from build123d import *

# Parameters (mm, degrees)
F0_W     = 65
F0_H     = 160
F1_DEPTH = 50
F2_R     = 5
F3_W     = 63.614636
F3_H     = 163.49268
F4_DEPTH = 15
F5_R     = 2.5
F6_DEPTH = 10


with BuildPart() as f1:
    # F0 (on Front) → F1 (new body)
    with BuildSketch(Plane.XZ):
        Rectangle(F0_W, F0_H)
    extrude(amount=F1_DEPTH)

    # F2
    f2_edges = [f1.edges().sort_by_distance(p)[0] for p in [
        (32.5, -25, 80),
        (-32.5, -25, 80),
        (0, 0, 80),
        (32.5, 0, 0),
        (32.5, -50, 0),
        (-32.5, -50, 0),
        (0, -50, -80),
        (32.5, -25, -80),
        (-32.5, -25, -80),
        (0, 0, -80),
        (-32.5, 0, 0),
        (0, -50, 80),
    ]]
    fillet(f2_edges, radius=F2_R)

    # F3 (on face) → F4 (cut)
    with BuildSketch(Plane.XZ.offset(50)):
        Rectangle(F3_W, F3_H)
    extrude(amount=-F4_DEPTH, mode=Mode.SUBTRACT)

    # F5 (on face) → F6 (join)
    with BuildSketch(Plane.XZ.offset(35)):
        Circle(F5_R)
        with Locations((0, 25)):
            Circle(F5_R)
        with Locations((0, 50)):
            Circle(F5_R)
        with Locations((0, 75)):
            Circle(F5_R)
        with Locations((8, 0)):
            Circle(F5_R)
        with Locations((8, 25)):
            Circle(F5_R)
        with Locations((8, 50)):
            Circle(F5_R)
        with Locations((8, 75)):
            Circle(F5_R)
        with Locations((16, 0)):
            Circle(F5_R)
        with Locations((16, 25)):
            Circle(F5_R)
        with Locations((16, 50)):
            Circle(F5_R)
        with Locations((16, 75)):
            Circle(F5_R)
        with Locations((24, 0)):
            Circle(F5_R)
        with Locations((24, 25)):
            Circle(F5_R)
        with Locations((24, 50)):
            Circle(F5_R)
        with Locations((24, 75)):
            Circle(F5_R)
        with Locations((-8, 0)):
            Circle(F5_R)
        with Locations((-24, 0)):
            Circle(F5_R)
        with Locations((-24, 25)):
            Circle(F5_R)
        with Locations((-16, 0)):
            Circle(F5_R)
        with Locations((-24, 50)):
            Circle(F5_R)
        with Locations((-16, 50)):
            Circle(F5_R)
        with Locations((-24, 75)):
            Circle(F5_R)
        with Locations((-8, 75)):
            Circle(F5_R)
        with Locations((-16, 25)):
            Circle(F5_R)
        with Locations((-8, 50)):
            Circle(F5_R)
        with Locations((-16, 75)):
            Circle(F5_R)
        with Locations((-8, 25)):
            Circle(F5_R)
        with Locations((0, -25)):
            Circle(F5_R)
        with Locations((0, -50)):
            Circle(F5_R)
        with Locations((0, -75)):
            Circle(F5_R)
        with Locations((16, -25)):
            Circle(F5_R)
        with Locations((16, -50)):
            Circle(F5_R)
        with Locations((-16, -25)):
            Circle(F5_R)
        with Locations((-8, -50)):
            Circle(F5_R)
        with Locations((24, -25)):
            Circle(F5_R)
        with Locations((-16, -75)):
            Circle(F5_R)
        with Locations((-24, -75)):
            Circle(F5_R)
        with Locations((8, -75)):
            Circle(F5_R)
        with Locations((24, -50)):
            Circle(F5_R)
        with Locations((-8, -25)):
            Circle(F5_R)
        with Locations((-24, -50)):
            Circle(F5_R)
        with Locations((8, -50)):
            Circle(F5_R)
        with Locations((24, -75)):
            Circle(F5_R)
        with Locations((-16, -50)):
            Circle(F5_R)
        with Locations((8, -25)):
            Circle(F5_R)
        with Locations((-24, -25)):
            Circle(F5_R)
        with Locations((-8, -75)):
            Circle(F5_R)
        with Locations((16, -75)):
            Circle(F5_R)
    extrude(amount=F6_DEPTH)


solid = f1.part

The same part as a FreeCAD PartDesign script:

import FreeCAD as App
import Part
import Sketcher
from FreeCAD import Vector

doc = App.newDocument("Part")
params = doc.addObject("Spreadsheet::Sheet", "Params")
for row, (alias, value) in enumerate([
    ("sketch1_width", "65 mm"),
    ("sketch1_height", "160 mm"),
    ("pad1_length", "50 mm"),
    ("fillet_radius", "5 mm"),
    ("pocket1_length", "15 mm"),
    ("sketch3_diameter", "5 mm"),
    ("pad2_length", "10 mm"),
], start=1):
    params.set(f"A{row}", alias)
    params.set(f"B{row}", "=" + value)
    params.setAlias(f"B{row}", alias)

body = doc.addObject("PartDesign::Body", "Body")

sketch1 = body.newObject("Sketcher::SketchObject", "Sketch")
sketch1.AttachmentSupport = (doc.getObject("XZ_Plane"), [""])
sketch1.MapMode = "FlatFace"
sketch1.addGeometry([
    Part.LineSegment(Vector(-32.5, 80, 0), Vector(-32.5, -80, 0)),
    Part.LineSegment(Vector(-32.5, -80, 0), Vector(32.5, -80, 0)),
    Part.LineSegment(Vector(32.5, -80, 0), Vector(32.5, 80, 0)),
    Part.LineSegment(Vector(32.5, 80, 0), Vector(-32.5, 80, 0)),
], False)
sketch1.addConstraint([
    Sketcher.Constraint("Coincident", 0, 2, 1, 1),
    Sketcher.Constraint("Coincident", 1, 2, 2, 1),
    Sketcher.Constraint("Coincident", 2, 2, 3, 1),
    Sketcher.Constraint("Coincident", 3, 2, 0, 1),
    Sketcher.Constraint("Vertical", 0),
    Sketcher.Constraint("Horizontal", 1),
    Sketcher.Constraint("Vertical", 2),
    Sketcher.Constraint("Horizontal", 3),
    Sketcher.Constraint("Symmetric", 0, 2, 2, 2, -1, 1),
    Sketcher.Constraint("DistanceX", 1, 1, 1, 2, 65.0),
    Sketcher.Constraint("DistanceY", 0, 2, 0, 1, 160.0),
])
sketch1.setExpression("Constraints[9]", "Params.sketch1_width")
sketch1.setExpression("Constraints[10]", "Params.sketch1_height")
pad1 = body.newObject("PartDesign::Pad", "Pad")
pad1.Profile = sketch1
pad1.setExpression("Length", "Params.pad1_length")
doc.recompute()

fillet = body.newObject("PartDesign::Fillet", "Fillet")
fillet.Base = (pad1, ["Edge1"])
fillet.UseAllEdges = True
fillet.setExpression("Radius", "Params.fillet_radius")

sketch2 = body.newObject("Sketcher::SketchObject", "Sketch001")
sketch2.AttachmentSupport = (doc.getObject("XZ_Plane"), [""])
sketch2.MapMode = "FlatFace"
sketch2.AttachmentOffset = App.Placement(Vector(0, 0, 50), App.Rotation())
sketch2.addGeometry([
    Part.LineSegment(Vector(-31.807318, 81.74634, 0), Vector(-31.807318, -81.74634, 0)),
    Part.LineSegment(Vector(-31.807318, -81.74634, 0), Vector(31.807318, -81.74634, 0)),
    Part.LineSegment(Vector(31.807318, -81.74634, 0), Vector(31.807318, 81.74634, 0)),
    Part.LineSegment(Vector(31.807318, 81.74634, 0), Vector(-31.807318, 81.74634, 0)),
], False)
sketch2.addConstraint([
    Sketcher.Constraint("Coincident", 0, 2, 1, 1),
    Sketcher.Constraint("Coincident", 1, 2, 2, 1),
    Sketcher.Constraint("Coincident", 2, 2, 3, 1),
    Sketcher.Constraint("Coincident", 3, 2, 0, 1),
    Sketcher.Constraint("Vertical", 0),
    Sketcher.Constraint("Horizontal", 1),
    Sketcher.Constraint("Vertical", 2),
    Sketcher.Constraint("Horizontal", 3),
    Sketcher.Constraint("Symmetric", 0, 2, 2, 2, -1, 1),
    Sketcher.Constraint("DistanceY", 0, 2, 0, 1, 163.49268),
    Sketcher.Constraint("DistanceX", 1, 1, 1, 2, 63.614636),
])
pocket1 = body.newObject("PartDesign::Pocket", "Pocket")
pocket1.Profile = sketch2
pocket1.setExpression("Length", "Params.pocket1_length")

sketch3 = body.newObject("Sketcher::SketchObject", "Sketch002")
sketch3.AttachmentSupport = (doc.getObject("XZ_Plane"), [""])
sketch3.MapMode = "FlatFace"
sketch3.AttachmentOffset = App.Placement(Vector(0, 0, 35), App.Rotation())
sketch3.addGeometry([
    Part.Circle(Vector(0, 0, 0), Vector(0, 0, 1), 2.5),
    Part.Circle(Vector(0, 25, 0), Vector(0, 0, 1), 2.5),
    Part.Circle(Vector(0, 50, 0), Vector(0, 0, 1), 2.5),
    Part.Circle(Vector(0, 75, 0), Vector(0, 0, 1), 2.5),
    Part.Circle(Vector(8, 0, 0), Vector(0, 0, 1), 2.5),
    Part.Circle(Vector(8, 25, 0), Vector(0, 0, 1), 2.5),
    Part.Circle(Vector(8, 50, 0), Vector(0, 0, 1), 2.5),
    Part.Circle(Vector(8, 75, 0), Vector(0, 0, 1), 2.5),
    Part.Circle(Vector(16, 0, 0), Vector(0, 0, 1), 2.5),
    Part.Circle(Vector(16, 25, 0), Vector(0, 0, 1), 2.5),
    Part.Circle(Vector(16, 50, 0), Vector(0, 0, 1), 2.5),
    Part.Circle(Vector(16, 75, 0), Vector(0, 0, 1), 2.5),
    Part.Circle(Vector(24, 0, 0), Vector(0, 0, 1), 2.5),
    Part.Circle(Vector(24, 25, 0), Vector(0, 0, 1), 2.5),
    Part.Circle(Vector(24, 50, 0), Vector(0, 0, 1), 2.5),
    Part.Circle(Vector(24, 75, 0), Vector(0, 0, 1), 2.5),
    Part.Circle(Vector(-8, 0, 0), Vector(0, 0, 1), 2.5),
    Part.Circle(Vector(-24, 0, 0), Vector(0, 0, 1), 2.5),
    Part.Circle(Vector(-24, 25, 0), Vector(0, 0, 1), 2.5),
    Part.Circle(Vector(-16, 0, 0), Vector(0, 0, 1), 2.5),
    Part.Circle(Vector(-24, 50, 0), Vector(0, 0, 1), 2.5),
    Part.Circle(Vector(-16, 50, 0), Vector(0, 0, 1), 2.5),
    Part.Circle(Vector(-24, 75, 0), Vector(0, 0, 1), 2.5),
    Part.Circle(Vector(-8, 75, 0), Vector(0, 0, 1), 2.5),
    Part.Circle(Vector(-16, 25, 0), Vector(0, 0, 1), 2.5),
    Part.Circle(Vector(-8, 50, 0), Vector(0, 0, 1), 2.5),
    Part.Circle(Vector(-16, 75, 0), Vector(0, 0, 1), 2.5),
    Part.Circle(Vector(-8, 25, 0), Vector(0, 0, 1), 2.5),
    Part.Circle(Vector(0, -25, 0), Vector(0, 0, 1), 2.5),
    Part.Circle(Vector(0, -50, 0), Vector(0, 0, 1), 2.5),
    Part.Circle(Vector(0, -75, 0), Vector(0, 0, 1), 2.5),
    Part.Circle(Vector(16, -25, 0), Vector(0, 0, 1), 2.5),
    Part.Circle(Vector(16, -50, 0), Vector(0, 0, 1), 2.5),
    Part.Circle(Vector(-16, -25, 0), Vector(0, 0, 1), 2.5),
    Part.Circle(Vector(-8, -50, 0), Vector(0, 0, 1), 2.5),
    Part.Circle(Vector(24, -25, 0), Vector(0, 0, 1), 2.5),
    Part.Circle(Vector(-16, -75, 0), Vector(0, 0, 1), 2.5),
    Part.Circle(Vector(-24, -75, 0), Vector(0, 0, 1), 2.5),
    Part.Circle(Vector(8, -75, 0), Vector(0, 0, 1), 2.5),
    Part.Circle(Vector(24, -50, 0), Vector(0, 0, 1), 2.5),
    Part.Circle(Vector(-8, -25, 0), Vector(0, 0, 1), 2.5),
    Part.Circle(Vector(-24, -50, 0), Vector(0, 0, 1), 2.5),
    Part.Circle(Vector(8, -50, 0), Vector(0, 0, 1), 2.5),
    Part.Circle(Vector(24, -75, 0), Vector(0, 0, 1), 2.5),
    Part.Circle(Vector(-16, -50, 0), Vector(0, 0, 1), 2.5),
    Part.Circle(Vector(8, -25, 0), Vector(0, 0, 1), 2.5),
    Part.Circle(Vector(-24, -25, 0), Vector(0, 0, 1), 2.5),
    Part.Circle(Vector(-8, -75, 0), Vector(0, 0, 1), 2.5),
    Part.Circle(Vector(16, -75, 0), Vector(0, 0, 1), 2.5),
], False)
sketch3.addConstraint([
    Sketcher.Constraint("Coincident", 0, 3, -1, 1),
    Sketcher.Constraint("Equal", 0, 1),
    Sketcher.Constraint("Equal", 1, 2),
    Sketcher.Constraint("Equal", 2, 3),
    Sketcher.Constraint("Equal", 3, 4),
    Sketcher.Constraint("Equal", 4, 5),
    Sketcher.Constraint("Equal", 5, 6),
    Sketcher.Constraint("Equal", 6, 7),
    Sketcher.Constraint("Equal", 7, 8),
    Sketcher.Constraint("Equal", 8, 9),
    Sketcher.Constraint("Equal", 9, 10),
    Sketcher.Constraint("Equal", 10, 11),
    Sketcher.Constraint("Equal", 11, 12),
    Sketcher.Constraint("Equal", 12, 13),
    Sketcher.Constraint("Equal", 13, 14),
    Sketcher.Constraint("Equal", 14, 15),
    Sketcher.Constraint("Equal", 15, 16),
    Sketcher.Constraint("Equal", 16, 17),
    Sketcher.Constraint("Equal", 17, 18),
    Sketcher.Constraint("Equal", 18, 19),
    Sketcher.Constraint("Equal", 19, 20),
    Sketcher.Constraint("Equal", 20, 21),
    Sketcher.Constraint("Equal", 21, 22),
    Sketcher.Constraint("Equal", 22, 23),
    Sketcher.Constraint("Equal", 23, 24),
    Sketcher.Constraint("Equal", 24, 25),
    Sketcher.Constraint("Equal", 25, 26),
    Sketcher.Constraint("Equal", 26, 27),
    Sketcher.Constraint("Equal", 27, 28),
    Sketcher.Constraint("Equal", 28, 29),
    Sketcher.Constraint("Equal", 29, 30),
    Sketcher.Constraint("Equal", 30, 31),
    Sketcher.Constraint("Equal", 31, 32),
    Sketcher.Constraint("Equal", 32, 33),
    Sketcher.Constraint("Equal", 33, 34),
    Sketcher.Constraint("Equal", 34, 35),
    Sketcher.Constraint("Equal", 35, 36),
    Sketcher.Constraint("Equal", 36, 37),
    Sketcher.Constraint("Equal", 37, 38),
    Sketcher.Constraint("Equal", 38, 39),
    Sketcher.Constraint("Equal", 39, 40),
    Sketcher.Constraint("Equal", 40, 41),
    Sketcher.Constraint("Equal", 41, 42),
    Sketcher.Constraint("Equal", 42, 43),
    Sketcher.Constraint("Equal", 43, 44),
    Sketcher.Constraint("Equal", 44, 45),
    Sketcher.Constraint("Equal", 45, 46),
    Sketcher.Constraint("Equal", 46, 47),
    Sketcher.Constraint("Equal", 47, 48),
    Sketcher.Constraint("Symmetric", 4, 3, 16, 3, -1, 1),
    Sketcher.Constraint("Symmetric", 12, 3, 17, 3, -1, 1),
    Sketcher.Constraint("Symmetric", 8, 3, 19, 3, -1, 1),
    Sketcher.Constraint("Symmetric", 1, 3, 28, 3, -1, 1),
    Sketcher.Constraint("Symmetric", 2, 3, 29, 3, -1, 1),
    Sketcher.Constraint("Symmetric", 3, 3, 30, 3, -1, 1),
    Sketcher.Constraint("Symmetric", 24, 3, 31, 3, -1, 1),
    Sketcher.Constraint("Symmetric", 21, 3, 32, 3, -1, 1),
    Sketcher.Constraint("Symmetric", 9, 3, 33, 3, -1, 1),
    Sketcher.Constraint("Symmetric", 6, 3, 34, 3, -1, 1),
    Sketcher.Constraint("Symmetric", 18, 3, 35, 3, -1, 1),
    Sketcher.Constraint("Symmetric", 11, 3, 36, 3, -1, 1),
    Sketcher.Constraint("Symmetric", 15, 3, 37, 3, -1, 1),
    Sketcher.Constraint("Symmetric", 23, 3, 38, 3, -1, 1),
    Sketcher.Constraint("Symmetric", 20, 3, 39, 3, -1, 1),
    Sketcher.Constraint("Symmetric", 5, 3, 40, 3, -1, 1),
    Sketcher.Constraint("Symmetric", 14, 3, 41, 3, -1, 1),
    Sketcher.Constraint("Symmetric", 25, 3, 42, 3, -1, 1),
    Sketcher.Constraint("Symmetric", 22, 3, 43, 3, -1, 1),
    Sketcher.Constraint("Symmetric", 10, 3, 44, 3, -1, 1),
    Sketcher.Constraint("Symmetric", 27, 3, 45, 3, -1, 1),
    Sketcher.Constraint("Symmetric", 13, 3, 46, 3, -1, 1),
    Sketcher.Constraint("Symmetric", 7, 3, 47, 3, -1, 1),
    Sketcher.Constraint("Symmetric", 26, 3, 48, 3, -1, 1),
    Sketcher.Constraint("Symmetric", 13, 3, 18, 3, -2),
    Sketcher.Constraint("Symmetric", 14, 3, 20, 3, -2),
    Sketcher.Constraint("Symmetric", 10, 3, 21, 3, -2),
    Sketcher.Constraint("Symmetric", 15, 3, 22, 3, -2),
    Sketcher.Constraint("Symmetric", 7, 3, 23, 3, -2),
    Sketcher.Constraint("Symmetric", 9, 3, 24, 3, -2),
    Sketcher.Constraint("Symmetric", 6, 3, 25, 3, -2),
    Sketcher.Constraint("Symmetric", 11, 3, 26, 3, -2),
    Sketcher.Constraint("Symmetric", 5, 3, 27, 3, -2),
    Sketcher.Constraint("PointOnObject", 1, 3, -2),
    Sketcher.Constraint("PointOnObject", 2, 3, -2),
    Sketcher.Constraint("PointOnObject", 3, 3, -2),
    Sketcher.Constraint("PointOnObject", 4, 3, -1),
    Sketcher.Constraint("PointOnObject", 8, 3, -1),
    Sketcher.Constraint("PointOnObject", 12, 3, -1),
    Sketcher.Constraint("Horizontal", 1, 3, 5, 3),
    Sketcher.Constraint("Horizontal", 2, 3, 6, 3),
    Sketcher.Constraint("Horizontal", 3, 3, 7, 3),
    Sketcher.Constraint("Horizontal", 5, 3, 9, 3),
    Sketcher.Constraint("Horizontal", 6, 3, 10, 3),
    Sketcher.Constraint("Horizontal", 7, 3, 11, 3),
    Sketcher.Constraint("Horizontal", 9, 3, 13, 3),
    Sketcher.Constraint("Horizontal", 10, 3, 14, 3),
    Sketcher.Constraint("Horizontal", 11, 3, 15, 3),
    Sketcher.Constraint("Vertical", 4, 3, 5, 3),
    Sketcher.Constraint("Vertical", 5, 3, 6, 3),
    Sketcher.Constraint("Vertical", 6, 3, 7, 3),
    Sketcher.Constraint("Vertical", 8, 3, 9, 3),
    Sketcher.Constraint("Vertical", 9, 3, 10, 3),
    Sketcher.Constraint("Vertical", 10, 3, 11, 3),
    Sketcher.Constraint("Vertical", 12, 3, 13, 3),
    Sketcher.Constraint("Vertical", 13, 3, 14, 3),
    Sketcher.Constraint("Vertical", 14, 3, 15, 3),
    Sketcher.Constraint("Diameter", 0, 5.0),
    Sketcher.Constraint("DistanceY", -1, 1, 1, 3, 25.0),
    Sketcher.Constraint("DistanceY", -1, 1, 2, 3, 50.0),
    Sketcher.Constraint("DistanceY", -1, 1, 3, 3, 75.0),
    Sketcher.Constraint("DistanceX", -1, 1, 4, 3, 8.0),
    Sketcher.Constraint("DistanceX", -1, 1, 8, 3, 16.0),
    Sketcher.Constraint("DistanceX", -1, 1, 12, 3, 24.0),
])
sketch3.setExpression("Constraints[106]", "Params.sketch3_diameter")
pad2 = body.newObject("PartDesign::Pad", "Pad001")
pad2.Profile = sketch3
pad2.setExpression("Length", "Params.pad2_length")

doc.recompute()
